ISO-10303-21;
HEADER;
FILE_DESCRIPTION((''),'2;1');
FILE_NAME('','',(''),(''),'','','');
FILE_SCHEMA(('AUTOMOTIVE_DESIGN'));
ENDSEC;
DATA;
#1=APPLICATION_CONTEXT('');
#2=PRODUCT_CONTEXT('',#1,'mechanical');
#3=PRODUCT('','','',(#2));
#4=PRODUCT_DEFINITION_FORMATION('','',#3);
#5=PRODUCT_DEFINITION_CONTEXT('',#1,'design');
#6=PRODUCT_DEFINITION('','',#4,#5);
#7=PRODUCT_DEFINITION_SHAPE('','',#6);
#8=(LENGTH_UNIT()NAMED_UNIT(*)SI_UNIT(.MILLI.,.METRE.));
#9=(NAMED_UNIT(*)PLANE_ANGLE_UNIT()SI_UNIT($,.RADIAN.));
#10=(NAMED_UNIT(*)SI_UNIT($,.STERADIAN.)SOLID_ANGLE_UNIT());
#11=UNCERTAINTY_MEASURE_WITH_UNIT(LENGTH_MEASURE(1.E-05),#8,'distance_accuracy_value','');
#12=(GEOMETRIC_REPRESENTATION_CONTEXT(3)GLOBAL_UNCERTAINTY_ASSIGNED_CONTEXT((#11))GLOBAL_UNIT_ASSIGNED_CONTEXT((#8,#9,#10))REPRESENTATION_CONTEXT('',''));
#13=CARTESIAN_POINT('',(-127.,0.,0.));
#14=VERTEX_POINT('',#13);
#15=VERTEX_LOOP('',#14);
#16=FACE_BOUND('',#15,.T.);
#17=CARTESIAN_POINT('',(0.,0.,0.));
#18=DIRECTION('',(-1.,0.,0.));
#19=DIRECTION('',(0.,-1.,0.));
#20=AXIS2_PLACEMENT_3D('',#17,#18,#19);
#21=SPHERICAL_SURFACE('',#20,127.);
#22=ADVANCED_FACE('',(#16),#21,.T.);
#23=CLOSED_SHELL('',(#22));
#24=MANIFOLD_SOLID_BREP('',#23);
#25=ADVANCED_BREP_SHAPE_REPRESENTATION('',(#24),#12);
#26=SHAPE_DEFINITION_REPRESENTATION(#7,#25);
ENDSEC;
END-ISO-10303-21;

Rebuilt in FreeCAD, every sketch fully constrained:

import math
import FreeCAD as App
import Part
import Sketcher
from FreeCAD import Vector
Q = App.Units.Quantity

doc = App.newDocument("Part")
params = doc.addObject("Spreadsheet::Sheet", "Params")
for row, (alias, value) in enumerate([
    ("sketch1_radius", "5 in"),
    ("revolution_angle", "360 deg"),
], start=1):
    params.set(f"A{row}", alias)
    params.set(f"B{row}", "=" + value)
    params.setAlias(f"B{row}", alias)

body = doc.addObject("PartDesign::Body", "Body")

# Sketch on XY plane
sketch1 = body.newObject("Sketcher::SketchObject", "Sketch")
sketch1.AttachmentSupport = (doc.getObject("XY_Plane"), [""])
sketch1.MapMode = "FlatFace"
sketch1.addGeometry(Part.LineSegment(Vector(-127, 0, 0), Vector(127, 0, 0)), False)
sketch1.addGeometry(Part.ArcOfCircle(Part.Circle(Vector(0, 0, 0), Vector(0, 0, 1), 127), math.radians(0), math.radians(180)), False)
sketch1.addConstraint(Sketcher.Constraint("Coincident", 0, 1, 1, 2))
sketch1.addConstraint(Sketcher.Constraint("Coincident", 1, 1, 0, 2))
sketch1.addConstraint(Sketcher.Constraint("Horizontal", 0))
sketch1.addConstraint(Sketcher.Constraint("Coincident", 1, 3, -1, 1))
sketch1.addConstraint(Sketcher.Constraint("PointOnObject", 0, 1, -1))
sketch1.addConstraint(Sketcher.Constraint("Radius", 1, Q("5 in")))
sketch1.setExpression("Constraints[5]", "Params.sketch1_radius")
revolution = body.newObject("PartDesign::Revolution", "Revolution")
revolution.Profile = sketch1
revolution.ReferenceAxis = (sketch1, ["H_Axis"])
revolution.setExpression("Angle", "Params.revolution_angle")

doc.recompute()
